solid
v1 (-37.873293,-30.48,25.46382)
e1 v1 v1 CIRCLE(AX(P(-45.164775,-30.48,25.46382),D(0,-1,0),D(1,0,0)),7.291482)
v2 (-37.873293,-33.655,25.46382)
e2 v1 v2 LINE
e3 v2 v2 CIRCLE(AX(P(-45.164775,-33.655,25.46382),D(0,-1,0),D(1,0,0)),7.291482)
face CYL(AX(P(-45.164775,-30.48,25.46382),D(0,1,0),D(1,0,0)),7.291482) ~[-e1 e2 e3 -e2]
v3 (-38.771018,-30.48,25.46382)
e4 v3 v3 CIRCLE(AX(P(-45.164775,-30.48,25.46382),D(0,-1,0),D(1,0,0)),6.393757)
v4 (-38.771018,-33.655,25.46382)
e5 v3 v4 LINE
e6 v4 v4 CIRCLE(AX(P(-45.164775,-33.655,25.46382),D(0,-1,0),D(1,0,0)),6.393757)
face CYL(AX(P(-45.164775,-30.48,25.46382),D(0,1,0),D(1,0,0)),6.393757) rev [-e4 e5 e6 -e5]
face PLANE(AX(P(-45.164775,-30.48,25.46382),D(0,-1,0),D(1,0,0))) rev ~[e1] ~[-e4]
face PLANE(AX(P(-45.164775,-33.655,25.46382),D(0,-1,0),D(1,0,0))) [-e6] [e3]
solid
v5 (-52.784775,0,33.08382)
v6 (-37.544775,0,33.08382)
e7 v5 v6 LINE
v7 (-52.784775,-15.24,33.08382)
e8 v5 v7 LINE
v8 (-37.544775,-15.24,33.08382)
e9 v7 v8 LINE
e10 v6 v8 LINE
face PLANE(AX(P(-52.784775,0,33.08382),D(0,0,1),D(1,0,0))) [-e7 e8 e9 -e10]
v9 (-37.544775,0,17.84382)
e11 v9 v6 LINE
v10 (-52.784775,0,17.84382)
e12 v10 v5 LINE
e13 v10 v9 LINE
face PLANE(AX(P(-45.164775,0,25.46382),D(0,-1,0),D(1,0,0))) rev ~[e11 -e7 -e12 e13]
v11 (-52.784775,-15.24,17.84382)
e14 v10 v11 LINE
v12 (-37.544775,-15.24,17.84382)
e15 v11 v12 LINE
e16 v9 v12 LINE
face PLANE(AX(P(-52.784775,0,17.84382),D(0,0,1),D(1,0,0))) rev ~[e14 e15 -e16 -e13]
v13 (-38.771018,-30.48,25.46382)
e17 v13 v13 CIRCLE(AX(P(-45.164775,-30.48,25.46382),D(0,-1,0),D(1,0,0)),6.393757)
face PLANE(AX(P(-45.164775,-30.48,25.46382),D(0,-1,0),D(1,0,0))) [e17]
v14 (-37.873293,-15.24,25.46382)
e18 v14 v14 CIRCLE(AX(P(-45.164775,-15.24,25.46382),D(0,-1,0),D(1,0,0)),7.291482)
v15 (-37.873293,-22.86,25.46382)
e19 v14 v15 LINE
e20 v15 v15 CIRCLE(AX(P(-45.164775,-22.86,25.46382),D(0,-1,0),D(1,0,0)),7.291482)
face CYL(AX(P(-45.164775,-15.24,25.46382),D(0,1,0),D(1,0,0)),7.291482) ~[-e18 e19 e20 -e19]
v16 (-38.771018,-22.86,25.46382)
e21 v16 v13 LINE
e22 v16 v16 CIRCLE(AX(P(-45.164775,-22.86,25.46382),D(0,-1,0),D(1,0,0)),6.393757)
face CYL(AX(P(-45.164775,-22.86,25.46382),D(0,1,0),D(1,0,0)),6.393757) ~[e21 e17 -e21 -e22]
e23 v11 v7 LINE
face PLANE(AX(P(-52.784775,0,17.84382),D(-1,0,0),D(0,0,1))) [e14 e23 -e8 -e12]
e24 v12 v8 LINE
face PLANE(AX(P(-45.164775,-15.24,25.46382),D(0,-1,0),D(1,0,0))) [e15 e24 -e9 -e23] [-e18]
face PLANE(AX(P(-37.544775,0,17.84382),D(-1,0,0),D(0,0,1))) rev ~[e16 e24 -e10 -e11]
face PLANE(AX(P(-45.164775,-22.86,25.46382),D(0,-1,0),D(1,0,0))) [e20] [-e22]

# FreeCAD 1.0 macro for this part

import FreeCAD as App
import Part
import Sketcher
Q = App.Units.Quantity


def add_polygon(sketch, points):
    """Adds a closed chain of lines whose ends are joined by coincident constraints."""
    first, n = sketch.GeometryCount, len(points)
    for a, b in zip(points, points[1:] + points[:1]):
        sketch.addGeometry(Part.LineSegment(App.Vector(*a, 0), App.Vector(*b, 0)), False)
    for i in range(n):
        sketch.addConstraint(Sketcher.Constraint("Coincident", first + i, 2, first + (i + 1) % n, 1))

doc = App.newDocument("Part")
body = doc.addObject("PartDesign::Body", "Body")

# Sketch on XZ plane
sketch1 = body.newObject("Sketcher::SketchObject", "Sketch")
sketch1.AttachmentSupport = (doc.getObject("XZ_Plane"), [""])
sketch1.MapMode = "FlatFace"
add_polygon(sketch1, [(-52.784775, 33.08382), (-52.784775, 17.84382), (-37.544775, 17.84382), (-37.544775, 33.08382)])  # lines 0-3
sketch1.addConstraint(Sketcher.Constraint("Vertical", 0))
sketch1.addConstraint(Sketcher.Constraint("Horizontal", 1))
sketch1.addConstraint(Sketcher.Constraint("Vertical", 2))
sketch1.addConstraint(Sketcher.Constraint("Horizontal", 3))
sketch1.addConstraint(Sketcher.Constraint("Equal", 3, 0))
sketch1.addConstraint(Sketcher.Constraint("DistanceX", 1, 1, 1, 2, Q("0.6 in")))
sketch1.addConstraint(Sketcher.Constraint("DistanceY", -1, 1, 0, 2, Q("17.84382 mm")))
sketch1.addConstraint(Sketcher.Constraint("DistanceX", 0, 2, -1, 1, Q("52.784775 mm")))
pad1 = body.newObject("PartDesign::Pad", "Pad")
pad1.Profile = sketch1
pad1.Length = Q("0.6 in")

# Sketch on XZ plane
sketch2 = body.newObject("Sketcher::SketchObject", "Sketch001")
sketch2.AttachmentSupport = (doc.getObject("XZ_Plane"), [""])
sketch2.MapMode = "FlatFace"
sketch2.AttachmentOffset = App.Placement(App.Vector(0, 0, 0.6 * 25.4), App.Rotation())
sketch2.addGeometry(Part.Circle(App.Vector(-45.164775, 25.46382, 0), App.Vector(0, 0, 1), 7.291482), False)
sketch2.addConstraint(Sketcher.Constraint("Diameter", 0, Q("14.582964 mm")))
sketch2.addConstraint(Sketcher.Constraint("DistanceY", -1, 1, 0, 3, Q("25.46382 mm")))
sketch2.addConstraint(Sketcher.Constraint("DistanceX", 0, 3, -1, 1, Q("45.164775 mm")))
pad2 = body.newObject("PartDesign::Pad", "Pad001")
pad2.Profile = sketch2
pad2.Length = Q("0.3 in")

# Sketch on XZ plane
sketch3 = body.newObject("Sketcher::SketchObject", "Sketch002")
sketch3.AttachmentSupport = (doc.getObject("XZ_Plane"), [""])
sketch3.MapMode = "FlatFace"
sketch3.AttachmentOffset = App.Placement(App.Vector(0, 0, 0.9 * 25.4), App.Rotation())
sketch3.addGeometry(Part.Circle(App.Vector(-45.164775, 25.46382, 0), App.Vector(0, 0, 1), 6.393757), False)
sketch3.addConstraint(Sketcher.Constraint("Diameter", 0, Q("12.787514 mm")))
sketch3.addConstraint(Sketcher.Constraint("DistanceY", -1, 1, 0, 3, Q("25.46382 mm")))
sketch3.addConstraint(Sketcher.Constraint("DistanceX", 0, 3, -1, 1, Q("45.164775 mm")))
pad3 = body.newObject("PartDesign::Pad", "Pad002")
pad3.Profile = sketch3
pad3.Length = Q("0.3 in")
body2 = doc.addObject("PartDesign::Body", "Body001")

# Sketch on XZ plane
sketch4 = body2.newObject("Sketcher::SketchObject", "Sketch003")
sketch4.AttachmentSupport = (doc.getObject("XZ_Plane001"), [""])
sketch4.MapMode = "FlatFace"
sketch4.AttachmentOffset = App.Placement(App.Vector(0, 0, 1.2 * 25.4), App.Rotation())
sketch4.addGeometry(Part.Circle(App.Vector(-45.164775, 25.46382, 0), App.Vector(0, 0, 1), 7.291482), False)
sketch4.addGeometry(Part.Circle(App.Vector(-45.164775, 25.46382, 0), App.Vector(0, 0, 1), 6.393757), False)
sketch4.addConstraint(Sketcher.Constraint("Coincident", 1, 3, 0, 3))
sketch4.addConstraint(Sketcher.Constraint("Diameter", 0, Q("14.582964 mm")))
sketch4.addConstraint(Sketcher.Constraint("Diameter", 1, Q("12.787514 mm")))
sketch4.addConstraint(Sketcher.Constraint("DistanceY", -1, 1, 0, 3, Q("25.46382 mm")))
sketch4.addConstraint(Sketcher.Constraint("DistanceX", 0, 3, -1, 1, Q("45.164775 mm")))
pad4 = body2.newObject("PartDesign::Pad", "Pad003")
pad4.Profile = sketch4
pad4.Length = Q("0.125 in")

doc.recompute()
